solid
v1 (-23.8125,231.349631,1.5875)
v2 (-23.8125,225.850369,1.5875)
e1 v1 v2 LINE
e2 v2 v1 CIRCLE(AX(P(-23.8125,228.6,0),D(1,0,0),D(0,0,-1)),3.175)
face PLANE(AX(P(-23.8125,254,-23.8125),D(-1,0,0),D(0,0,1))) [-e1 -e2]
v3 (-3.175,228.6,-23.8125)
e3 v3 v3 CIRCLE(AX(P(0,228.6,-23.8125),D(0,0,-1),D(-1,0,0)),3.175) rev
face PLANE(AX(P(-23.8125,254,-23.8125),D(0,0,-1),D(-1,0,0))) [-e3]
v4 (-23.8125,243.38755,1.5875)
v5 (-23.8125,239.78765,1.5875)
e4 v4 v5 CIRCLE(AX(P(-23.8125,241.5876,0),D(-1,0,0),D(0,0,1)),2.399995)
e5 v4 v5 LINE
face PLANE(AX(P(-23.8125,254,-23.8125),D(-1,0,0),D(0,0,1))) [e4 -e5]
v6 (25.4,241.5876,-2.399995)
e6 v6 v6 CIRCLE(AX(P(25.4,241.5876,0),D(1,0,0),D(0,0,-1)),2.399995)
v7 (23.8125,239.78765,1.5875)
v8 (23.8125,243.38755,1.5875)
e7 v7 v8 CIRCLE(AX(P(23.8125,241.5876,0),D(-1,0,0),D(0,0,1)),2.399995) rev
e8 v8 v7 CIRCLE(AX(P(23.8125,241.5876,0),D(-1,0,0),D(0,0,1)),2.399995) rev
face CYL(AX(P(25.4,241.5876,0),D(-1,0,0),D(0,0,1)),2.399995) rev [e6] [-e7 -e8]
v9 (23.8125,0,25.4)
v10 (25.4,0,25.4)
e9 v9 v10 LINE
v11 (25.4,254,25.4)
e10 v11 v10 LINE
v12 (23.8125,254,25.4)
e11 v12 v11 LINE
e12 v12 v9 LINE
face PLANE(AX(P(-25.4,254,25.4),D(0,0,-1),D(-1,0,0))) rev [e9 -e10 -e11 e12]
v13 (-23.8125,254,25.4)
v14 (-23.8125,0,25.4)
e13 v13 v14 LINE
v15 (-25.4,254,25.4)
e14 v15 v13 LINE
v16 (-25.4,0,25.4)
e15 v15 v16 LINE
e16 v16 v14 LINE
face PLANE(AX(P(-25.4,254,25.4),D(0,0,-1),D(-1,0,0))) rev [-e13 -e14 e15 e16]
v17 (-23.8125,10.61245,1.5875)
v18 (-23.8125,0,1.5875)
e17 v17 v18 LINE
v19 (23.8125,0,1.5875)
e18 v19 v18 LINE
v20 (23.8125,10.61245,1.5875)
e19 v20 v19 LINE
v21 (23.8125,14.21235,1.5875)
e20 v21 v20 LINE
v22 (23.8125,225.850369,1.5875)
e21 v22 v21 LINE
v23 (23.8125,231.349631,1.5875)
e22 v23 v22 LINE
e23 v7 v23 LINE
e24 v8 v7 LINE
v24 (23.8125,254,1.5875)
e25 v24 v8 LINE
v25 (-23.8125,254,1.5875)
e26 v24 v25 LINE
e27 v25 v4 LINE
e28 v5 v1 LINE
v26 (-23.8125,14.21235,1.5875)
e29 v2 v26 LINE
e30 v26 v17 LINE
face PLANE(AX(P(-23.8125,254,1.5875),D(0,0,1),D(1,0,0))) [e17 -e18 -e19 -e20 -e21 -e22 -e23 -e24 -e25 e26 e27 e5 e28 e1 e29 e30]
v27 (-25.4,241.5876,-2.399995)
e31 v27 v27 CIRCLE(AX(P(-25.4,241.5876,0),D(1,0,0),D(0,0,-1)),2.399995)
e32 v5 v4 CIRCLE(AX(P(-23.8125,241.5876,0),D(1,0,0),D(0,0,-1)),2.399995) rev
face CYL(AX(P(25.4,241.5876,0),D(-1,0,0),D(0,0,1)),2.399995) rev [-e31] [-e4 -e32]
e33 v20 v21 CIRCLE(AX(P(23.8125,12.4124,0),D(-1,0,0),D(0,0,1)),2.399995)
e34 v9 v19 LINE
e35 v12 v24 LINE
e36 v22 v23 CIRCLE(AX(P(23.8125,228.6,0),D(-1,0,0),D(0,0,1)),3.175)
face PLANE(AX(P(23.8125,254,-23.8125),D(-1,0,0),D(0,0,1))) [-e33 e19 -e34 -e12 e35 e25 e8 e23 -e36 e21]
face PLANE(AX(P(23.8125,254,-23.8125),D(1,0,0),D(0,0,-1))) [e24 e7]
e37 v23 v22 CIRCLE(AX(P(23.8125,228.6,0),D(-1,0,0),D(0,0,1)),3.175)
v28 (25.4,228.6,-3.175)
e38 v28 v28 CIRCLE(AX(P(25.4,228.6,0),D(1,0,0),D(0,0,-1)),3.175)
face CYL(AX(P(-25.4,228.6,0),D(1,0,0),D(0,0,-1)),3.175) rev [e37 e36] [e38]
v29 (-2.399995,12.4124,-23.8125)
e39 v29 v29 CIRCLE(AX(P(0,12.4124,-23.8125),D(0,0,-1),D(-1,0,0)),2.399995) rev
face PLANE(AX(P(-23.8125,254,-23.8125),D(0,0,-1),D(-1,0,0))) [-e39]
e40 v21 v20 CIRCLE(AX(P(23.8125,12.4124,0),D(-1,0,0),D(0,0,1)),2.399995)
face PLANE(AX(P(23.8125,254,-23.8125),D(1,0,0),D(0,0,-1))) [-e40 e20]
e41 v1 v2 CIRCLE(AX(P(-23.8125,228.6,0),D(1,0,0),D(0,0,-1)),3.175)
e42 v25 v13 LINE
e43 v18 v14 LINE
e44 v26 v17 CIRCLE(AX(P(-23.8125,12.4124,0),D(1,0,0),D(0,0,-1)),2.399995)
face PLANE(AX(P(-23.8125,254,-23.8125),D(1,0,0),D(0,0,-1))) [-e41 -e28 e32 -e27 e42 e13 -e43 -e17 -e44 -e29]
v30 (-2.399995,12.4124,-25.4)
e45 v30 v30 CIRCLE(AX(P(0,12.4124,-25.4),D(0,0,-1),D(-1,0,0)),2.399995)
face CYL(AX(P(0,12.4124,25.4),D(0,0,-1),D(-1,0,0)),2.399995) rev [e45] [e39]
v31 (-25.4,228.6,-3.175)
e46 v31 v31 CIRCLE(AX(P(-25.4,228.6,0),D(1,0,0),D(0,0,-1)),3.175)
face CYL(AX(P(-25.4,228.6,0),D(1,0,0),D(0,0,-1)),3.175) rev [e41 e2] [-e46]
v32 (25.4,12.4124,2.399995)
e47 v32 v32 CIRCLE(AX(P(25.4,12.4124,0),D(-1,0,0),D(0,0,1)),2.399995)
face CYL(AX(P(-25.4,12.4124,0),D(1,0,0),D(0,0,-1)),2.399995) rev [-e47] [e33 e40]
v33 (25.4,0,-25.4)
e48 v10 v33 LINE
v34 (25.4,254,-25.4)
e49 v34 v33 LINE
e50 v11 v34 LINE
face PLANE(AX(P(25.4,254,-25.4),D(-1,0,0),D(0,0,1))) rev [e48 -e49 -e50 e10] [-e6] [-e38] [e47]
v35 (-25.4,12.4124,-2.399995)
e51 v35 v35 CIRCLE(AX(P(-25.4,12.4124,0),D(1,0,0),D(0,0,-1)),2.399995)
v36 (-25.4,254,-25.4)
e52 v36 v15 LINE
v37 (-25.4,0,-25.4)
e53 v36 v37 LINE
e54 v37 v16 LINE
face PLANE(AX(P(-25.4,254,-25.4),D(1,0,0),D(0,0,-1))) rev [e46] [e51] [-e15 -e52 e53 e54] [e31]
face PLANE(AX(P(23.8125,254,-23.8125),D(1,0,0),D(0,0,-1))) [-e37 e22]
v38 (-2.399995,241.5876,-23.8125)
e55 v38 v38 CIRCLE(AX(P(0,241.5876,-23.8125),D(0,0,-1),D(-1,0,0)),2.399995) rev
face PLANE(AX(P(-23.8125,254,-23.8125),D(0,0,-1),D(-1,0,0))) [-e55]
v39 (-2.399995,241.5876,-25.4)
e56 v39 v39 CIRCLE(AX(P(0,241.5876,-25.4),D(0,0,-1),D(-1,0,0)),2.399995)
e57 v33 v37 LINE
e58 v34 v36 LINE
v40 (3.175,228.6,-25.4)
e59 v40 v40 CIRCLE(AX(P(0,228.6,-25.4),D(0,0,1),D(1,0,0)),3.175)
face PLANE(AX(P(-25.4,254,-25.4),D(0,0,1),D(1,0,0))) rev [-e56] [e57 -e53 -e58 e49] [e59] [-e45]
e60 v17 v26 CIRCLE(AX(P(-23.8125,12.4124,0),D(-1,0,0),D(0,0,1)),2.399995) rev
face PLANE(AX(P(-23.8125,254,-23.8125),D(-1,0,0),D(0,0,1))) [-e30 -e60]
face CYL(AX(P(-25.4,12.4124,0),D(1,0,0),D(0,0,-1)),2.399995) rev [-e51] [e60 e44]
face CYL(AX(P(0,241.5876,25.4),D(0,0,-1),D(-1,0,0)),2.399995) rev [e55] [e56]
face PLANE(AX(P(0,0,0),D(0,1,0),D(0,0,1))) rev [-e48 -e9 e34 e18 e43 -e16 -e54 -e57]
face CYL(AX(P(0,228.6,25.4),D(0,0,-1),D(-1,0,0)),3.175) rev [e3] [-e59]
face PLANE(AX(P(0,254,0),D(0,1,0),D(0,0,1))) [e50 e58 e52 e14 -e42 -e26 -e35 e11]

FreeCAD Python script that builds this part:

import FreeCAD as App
import Part
import Sketcher

V = App.Vector
Q = App.Units.Quantity

doc = App.newDocument("Part")
body = doc.addObject("PartDesign::Body", "Body")

# Sketch on XZ plane
sketch1 = doc.addObject("Sketcher::SketchObject", "Sketch")
body.addObject(sketch1)
sketch1.AttachmentSupport = (doc.XZ_Plane, [""])
sketch1.MapMode = "FlatFace"
sketch1.addGeometry(Part.LineSegment(V(-25.4, -25.4, 0), V(-25.4, 25.4, 0)), False)
sketch1.addGeometry(Part.LineSegment(V(-25.4, 25.4, 0), V(25.4, 25.4, 0)), False)
sketch1.addGeometry(Part.LineSegment(V(25.4, 25.4, 0), V(25.4, -25.4, 0)), False)
sketch1.addGeometry(Part.LineSegment(V(25.4, -25.4, 0), V(-25.4, -25.4, 0)), False)
sketch1.addGeometry(Part.LineSegment(V(23.8125, 23.8125, 0), V(-23.8125, 23.8125, 0)), False)
sketch1.addGeometry(Part.LineSegment(V(-23.8125, 23.8125, 0), V(-23.8125, -23.8125, 0)), False)
sketch1.addGeometry(Part.LineSegment(V(-23.8125, -23.8125, 0), V(23.8125, -23.8125, 0)), False)
sketch1.addGeometry(Part.LineSegment(V(23.8125, -23.8125, 0), V(23.8125, 23.8125, 0)), False)
sketch1.addConstraint(Sketcher.Constraint("Coincident", 0, 2, 1, 1))
sketch1.addConstraint(Sketcher.Constraint("Coincident", 1, 2, 2, 1))
sketch1.addConstraint(Sketcher.Constraint("Coincident", 2, 2, 3, 1))
sketch1.addConstraint(Sketcher.Constraint("Coincident", 3, 2, 0, 1))
sketch1.addConstraint(Sketcher.Constraint("Coincident", 4, 2, 5, 1))
sketch1.addConstraint(Sketcher.Constraint("Coincident", 5, 2, 6, 1))
sketch1.addConstraint(Sketcher.Constraint("Coincident", 6, 2, 7, 1))
sketch1.addConstraint(Sketcher.Constraint("Coincident", 7, 2, 4, 1))
sketch1.addConstraint(Sketcher.Constraint("Vertical", 0))
sketch1.addConstraint(Sketcher.Constraint("Horizontal", 1))
sketch1.addConstraint(Sketcher.Constraint("Vertical", 2))
sketch1.addConstraint(Sketcher.Constraint("Horizontal", 3))
sketch1.addConstraint(Sketcher.Constraint("Horizontal", 4))
sketch1.addConstraint(Sketcher.Constraint("Vertical", 5))
sketch1.addConstraint(Sketcher.Constraint("Horizontal", 6))
sketch1.addConstraint(Sketcher.Constraint("Vertical", 7))
sketch1.addConstraint(Sketcher.Constraint("Symmetric", 0, 2, 2, 2, -1, 1))
sketch1.addConstraint(Sketcher.Constraint("Symmetric", 4, 2, 6, 2, -1, 1))
sketch1.addConstraint(Sketcher.Constraint("Equal", 3, 0))
sketch1.addConstraint(Sketcher.Constraint("Equal", 6, 5))
sketch1.addConstraint(Sketcher.Constraint("DistanceX", 1, 1, 1, 2, Q("2 in")))
sketch1.addConstraint(Sketcher.Constraint("DistanceX", 4, 2, 4, 1, Q("1.875 in")))
pad1 = doc.addObject("PartDesign::Pad", "Pad")
body.addObject(pad1)
pad1.Profile = sketch1
pad1.Length = Q("10 in")
pad1.Reversed = True

# Sketch on YZ plane
sketch2 = doc.addObject("Sketcher::SketchObject", "Sketch001")
body.addObject(sketch2)
sketch2.AttachmentSupport = (doc.YZ_Plane, [""])
sketch2.MapMode = "FlatFace"
sketch2.AttachmentOffset = App.Placement(V(0, 0, -0.9375 * 25.4), App.Rotation())
sketch2.addGeometry(Part.Circle(V(241.5876, 0, 0), V(0, 0, 1), 2.399995), False)
sketch2.addConstraint(Sketcher.Constraint("PointOnObject", 0, 3, -1))
sketch2.addConstraint(Sketcher.Constraint("Diameter", 0, Q("4.79999 mm")))
sketch2.addConstraint(Sketcher.Constraint("DistanceX", -1, 1, 0, 3, Q("241.5876 mm")))
pocket1 = doc.addObject("PartDesign::Pocket", "Pocket")
body.addObject(pocket1)
pocket1.Profile = sketch2
pocket1.Type = "ThroughAll"
pocket1.Midplane = True

# Sketch on XY plane
sketch3 = doc.addObject("Sketcher::SketchObject", "Sketch002")
body.addObject(sketch3)
sketch3.AttachmentSupport = (doc.XY_Plane, [""])
sketch3.MapMode = "FlatFace"
sketch3.AttachmentOffset = App.Placement(V(0, 0, -1 * 25.4), App.Rotation())
sketch3.addGeometry(Part.Circle(V(0, 241.5876, 0), V(0, 0, 1), 2.399995), False)
sketch3.addConstraint(Sketcher.Constraint("PointOnObject", 0, 3, -2))
sketch3.addConstraint(Sketcher.Constraint("Diameter", 0, Q("4.79999 mm")))
sketch3.addConstraint(Sketcher.Constraint("DistanceY", -1, 1, 0, 3, Q("241.5876 mm")))
pocket2 = doc.addObject("PartDesign::Pocket", "Pocket001")
body.addObject(pocket2)
pocket2.Profile = sketch3
pocket2.Type = "ThroughAll"
pocket2.Reversed = True

# Sketch on YZ plane
sketch4 = doc.addObject("Sketcher::SketchObject", "Sketch003")
body.addObject(sketch4)
sketch4.AttachmentSupport = (doc.YZ_Plane, [""])
sketch4.MapMode = "FlatFace"
sketch4.AttachmentOffset = App.Placement(V(0, 0, 1 * 25.4), App.Rotation())
sketch4.addGeometry(Part.Circle(V(12.4124, 0, 0), V(0, 0, 1), 2.399995), False)
sketch4.addConstraint(Sketcher.Constraint("PointOnObject", 0, 3, -1))
sketch4.addConstraint(Sketcher.Constraint("Diameter", 0, Q("4.79999 mm")))
sketch4.addConstraint(Sketcher.Constraint("DistanceX", -1, 1, 0, 3, Q("12.4124 mm")))
pocket3 = doc.addObject("PartDesign::Pocket", "Pocket002")
body.addObject(pocket3)
pocket3.Profile = sketch4
pocket3.Type = "ThroughAll"
pocket3.Midplane = True

# Sketch on XY plane
sketch5 = doc.addObject("Sketcher::SketchObject", "Sketch004")
body.addObject(sketch5)
sketch5.AttachmentSupport = (doc.XY_Plane, [""])
sketch5.MapMode = "FlatFace"
sketch5.AttachmentOffset = App.Placement(V(0, 0, -1 * 25.4), App.Rotation())
sketch5.addGeometry(Part.Circle(V(0, 12.4124, 0), V(0, 0, 1), 2.399995), False)
sketch5.addConstraint(Sketcher.Constraint("PointOnObject", 0, 3, -2))
sketch5.addConstraint(Sketcher.Constraint("Diameter", 0, Q("4.79999 mm")))
sketch5.addConstraint(Sketcher.Constraint("DistanceY", -1, 1, 0, 3, Q("12.4124 mm")))
pocket4 = doc.addObject("PartDesign::Pocket", "Pocket003")
body.addObject(pocket4)
pocket4.Profile = sketch5
pocket4.Type = "ThroughAll"
pocket4.Midplane = True

# Sketch on XY plane
sketch6 = doc.addObject("Sketcher::SketchObject", "Sketch005")
body.addObject(sketch6)
sketch6.AttachmentSupport = (doc.XY_Plane, [""])
sketch6.MapMode = "FlatFace"
sketch6.AttachmentOffset = App.Placement(V(0, 0, -1 * 25.4), App.Rotation())
sketch6.addGeometry(Part.Circle(V(0, 228.6, 0), V(0, 0, 1), 3.175), False)
sketch6.addConstraint(Sketcher.Constraint("PointOnObject", 0, 3, -2))
sketch6.addConstraint(Sketcher.Constraint("Diameter", 0, Q("0.25 in")))
sketch6.addConstraint(Sketcher.Constraint("DistanceY", -1, 1, 0, 3, Q("9 in")))
pocket5 = doc.addObject("PartDesign::Pocket", "Pocket004")
body.addObject(pocket5)
pocket5.Profile = sketch6
pocket5.Type = "ThroughAll"
pocket5.Midplane = True

# Sketch on YZ plane
sketch7 = doc.addObject("Sketcher::SketchObject", "Sketch006")
body.addObject(sketch7)
sketch7.AttachmentSupport = (doc.YZ_Plane, [""])
sketch7.MapMode = "FlatFace"
sketch7.AttachmentOffset = App.Placement(V(0, 0, 1 * 25.4), App.Rotation())
sketch7.addGeometry(Part.Circle(V(228.6, 0, 0), V(0, 0, 1), 3.175), False)
sketch7.addConstraint(Sketcher.Constraint("PointOnObject", 0, 3, -1))
sketch7.addConstraint(Sketcher.Constraint("Diameter", 0, Q("0.25 in")))
sketch7.addConstraint(Sketcher.Constraint("DistanceX", -1, 1, 0, 3, Q("9 in")))
pocket6 = doc.addObject("PartDesign::Pocket", "Pocket005")
body.addObject(pocket6)
pocket6.Profile = sketch7
pocket6.Type = "ThroughAll"
pocket6.Midplane = True

# Sketch on XZ plane
sketch8 = doc.addObject("Sketcher::SketchObject", "Sketch007")
body.addObject(sketch8)
sketch8.AttachmentSupport = (doc.XZ_Plane, [""])
sketch8.MapMode = "FlatFace"
sketch8.addGeometry(Part.LineSegment(V(-23.8125, 25.4, 0), V(-23.8125, 23.8125, 0)), False)
sketch8.addGeometry(Part.LineSegment(V(-23.8125, 23.8125, 0), V(23.8125, 23.8125, 0)), False)
sketch8.addGeometry(Part.LineSegment(V(23.8125, 23.8125, 0), V(23.8125, 25.4, 0)), False)
sketch8.addGeometry(Part.LineSegment(V(23.8125, 25.4, 0), V(-23.8125, 25.4, 0)), False)
sketch8.addConstraint(Sketcher.Constraint("Coincident", 0, 2, 1, 1))
sketch8.addConstraint(Sketcher.Constraint("Coincident", 1, 2, 2, 1))
sketch8.addConstraint(Sketcher.Constraint("Coincident", 2, 2, 3, 1))
sketch8.addConstraint(Sketcher.Constraint("Coincident", 3, 2, 0, 1))
sketch8.addConstraint(Sketcher.Constraint("Vertical", 0))
sketch8.addConstraint(Sketcher.Constraint("Horizontal", 1))
sketch8.addConstraint(Sketcher.Constraint("Vertical", 2))
sketch8.addConstraint(Sketcher.Constraint("Horizontal", 3))
sketch8.addConstraint(Sketcher.Constraint("DistanceY", -1, 1, 2, 2, Q("1 in")))
sketch8.addConstraint(Sketcher.Constraint("DistanceX", 1, 1, 1, 2, Q("1.875 in")))
sketch8.addConstraint(Sketcher.Constraint("DistanceY", 0, 2, 0, 1, Q("0.0625 in")))
sketch8.addConstraint(Sketcher.Constraint("DistanceX", 0, 2, -1, 1, Q("0.9375 in")))
pocket7 = doc.addObject("PartDesign::Pocket", "Pocket006")
body.addObject(pocket7)
pocket7.Profile = sketch8
pocket7.Length = Q("10 in")

# Sketch on XZ plane
sketch9 = doc.addObject("Sketcher::SketchObject", "Sketch008")
body.addObject(sketch9)
sketch9.AttachmentSupport = (doc.XZ_Plane, [""])
sketch9.MapMode = "FlatFace"
sketch9.addGeometry(Part.LineSegment(V(-23.8125, 1.5875, 0), V(-23.8125, -23.8125, 0)), False)
sketch9.addGeometry(Part.LineSegment(V(-23.8125, -23.8125, 0), V(23.8125, -23.8125, 0)), False)
sketch9.addGeometry(Part.LineSegment(V(23.8125, -23.8125, 0), V(23.8125, 1.5875, 0)), False)
sketch9.addGeometry(Part.LineSegment(V(23.8125, 1.5875, 0), V(-23.8125, 1.5875, 0)), False)
sketch9.addConstraint(Sketcher.Constraint("Coincident", 0, 2, 1, 1))
sketch9.addConstraint(Sketcher.Constraint("Coincident", 1, 2, 2, 1))
sketch9.addConstraint(Sketcher.Constraint("Coincident", 2, 2, 3, 1))
sketch9.addConstraint(Sketcher.Constraint("Coincident", 3, 2, 0, 1))
sketch9.addConstraint(Sketcher.Constraint("Vertical", 0))
sketch9.addConstraint(Sketcher.Constraint("Horizontal", 1))
sketch9.addConstraint(Sketcher.Constraint("Vertical", 2))
sketch9.addConstraint(Sketcher.Constraint("Horizontal", 3))
sketch9.addConstraint(Sketcher.Constraint("DistanceY", 0, 2, 0, 1, Q("1 in")))
sketch9.addConstraint(Sketcher.Constraint("DistanceX", 1, 1, 1, 2, Q("1.875 in")))
sketch9.addConstraint(Sketcher.Constraint("DistanceX", 0, 2, -1, 1, Q("0.9375 in")))
sketch9.addConstraint(Sketcher.Constraint("DistanceY", 0, 2, -1, 1, Q("0.9375 in")))
pad2 = doc.addObject("PartDesign::Pad", "Pad001")
body.addObject(pad2)
pad2.Profile = sketch9
pad2.Length = Q("10 in")
pad2.Reversed = True

doc.recompute()
